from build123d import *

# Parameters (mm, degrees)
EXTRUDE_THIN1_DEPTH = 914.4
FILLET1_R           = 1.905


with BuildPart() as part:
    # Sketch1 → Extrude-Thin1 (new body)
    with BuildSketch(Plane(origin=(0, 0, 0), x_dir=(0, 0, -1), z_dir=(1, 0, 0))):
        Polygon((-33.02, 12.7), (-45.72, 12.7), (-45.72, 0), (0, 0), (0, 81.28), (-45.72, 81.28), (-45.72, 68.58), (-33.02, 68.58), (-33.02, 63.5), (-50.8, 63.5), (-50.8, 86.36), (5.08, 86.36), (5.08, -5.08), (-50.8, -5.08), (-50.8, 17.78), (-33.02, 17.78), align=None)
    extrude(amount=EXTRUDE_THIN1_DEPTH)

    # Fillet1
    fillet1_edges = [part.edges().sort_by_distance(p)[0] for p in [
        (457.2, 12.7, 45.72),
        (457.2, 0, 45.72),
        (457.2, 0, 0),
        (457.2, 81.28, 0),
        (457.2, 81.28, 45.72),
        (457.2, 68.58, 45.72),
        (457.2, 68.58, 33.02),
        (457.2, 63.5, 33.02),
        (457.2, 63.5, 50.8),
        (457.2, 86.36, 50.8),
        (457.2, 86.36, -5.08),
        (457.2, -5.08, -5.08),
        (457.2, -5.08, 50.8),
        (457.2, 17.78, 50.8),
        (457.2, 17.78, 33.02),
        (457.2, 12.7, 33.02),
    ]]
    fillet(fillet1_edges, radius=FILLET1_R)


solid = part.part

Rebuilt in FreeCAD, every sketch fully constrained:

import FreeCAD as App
import Part
import Sketcher
from FreeCAD import Vector
Q = App.Units.Quantity


def edges_at(feature, points):
    """Names of the edges that pass closest to the given points."""
    edges = feature.Shape.Edges
    near = lambda p: min(range(len(edges)), key=lambda i: edges[i].distToShape(Part.Vertex(*p))[0])
    return sorted({f"Edge{near(p) + 1}" for p in points})


def add_polygon(sketch, points):
    """Adds a closed chain of lines whose ends are joined by coincident constraints."""
    first, n = sketch.GeometryCount, len(points)
    for a, b in zip(points, points[1:] + points[:1]):
        sketch.addGeometry(Part.LineSegment(App.Vector(*a, 0), App.Vector(*b, 0)), False)
    for i in range(n):
        sketch.addConstraint(Sketcher.Constraint("Coincident", first + i, 2, first + (i + 1) % n, 1))

doc = App.newDocument("Part")
body = doc.addObject("PartDesign::Body", "Body")

# Sketch on YZ plane
sketch1 = body.newObject("Sketcher::SketchObject", "Sketch")
sketch1.AttachmentSupport = (doc.getObject("YZ_Plane"), [""])
sketch1.MapMode = "FlatFace"
add_polygon(sketch1, [(12.7, 45.72), (12.7, 33.02), (17.78, 33.02), (17.78, 50.8), (-5.08, 50.8), (-5.08, -5.08), (86.36, -5.08), (86.36, 50.8), (63.5, 50.8), (63.5, 33.02), (68.58, 33.02), (68.58, 45.72), (81.28, 45.72), (81.28, 0), (0, 0), (0, 45.72)])  # lines 0-15
sketch1.addConstraint([
    Sketcher.Constraint("Vertical", 0),
    Sketcher.Constraint("Horizontal", 1),
    Sketcher.Constraint("Vertical", 2),
    Sketcher.Constraint("Horizontal", 3),
    Sketcher.Constraint("Vertical", 4),
    Sketcher.Constraint("Horizontal", 5),
    Sketcher.Constraint("Vertical", 6),
    Sketcher.Constraint("Horizontal", 7),
    Sketcher.Constraint("Vertical", 8),
    Sketcher.Constraint("Horizontal", 9),
    Sketcher.Constraint("Vertical", 10),
    Sketcher.Constraint("Horizontal", 11),
    Sketcher.Constraint("Vertical", 12),
    Sketcher.Constraint("Horizontal", 13),
    Sketcher.Constraint("Vertical", 14),
    Sketcher.Constraint("Horizontal", 15),
    Sketcher.Constraint("Coincident", 13, 2, -1, 1),
    Sketcher.Constraint("Horizontal", 3, 2, 6, 2),
    Sketcher.Constraint("Horizontal", 1, 2, 8, 2),
    Sketcher.Constraint("Horizontal", 11, 2, 14, 2),
    Sketcher.Constraint("Equal", 3, 7),
    Sketcher.Constraint("Equal", 1, 9),
    Sketcher.Constraint("Equal", 11, 15),
    Sketcher.Constraint("Equal", 15, 0),
    Sketcher.Constraint("DistanceX", 1, 1, 1, 2, Q("0.2 in")),
    Sketcher.Constraint("DistanceX", 3, 2, 3, 1, Q("0.9 in")),
    Sketcher.Constraint("DistanceX", 5, 1, 5, 2, Q("3.6 in")),
    Sketcher.Constraint("DistanceX", 11, 1, 11, 2, Q("0.5 in")),
    Sketcher.Constraint("DistanceY", 2, 1, 2, 2, Q("0.7 in")),
    Sketcher.Constraint("DistanceY", 4, 2, 4, 1, Q("2.2 in")),
    Sketcher.Constraint("DistanceY", 12, 2, 12, 1, Q("1.8 in")),
])
pad1 = body.newObject("PartDesign::Pad", "Pad")
pad1.Profile = sketch1
pad1.Length = Q("36 in")
doc.recompute()

fillet = body.newObject("PartDesign::Fillet", "Fillet")
fillet.Base = (pad1, edges_at(pad1, [
    (457.2, 12.7, 45.72),
    (457.2, 0, 45.72),
    (457.2, 0, 0),
    (457.2, 81.28, 0),
    (457.2, 81.28, 45.72),
    (457.2, 68.58, 45.72),
    (457.2, 68.58, 33.02),
    (457.2, 63.5, 33.02),
    (457.2, 63.5, 50.8),
    (457.2, 86.36, 50.8),
    (457.2, 86.36, -5.08),
    (457.2, -5.08, -5.08),
    (457.2, -5.08, 50.8),
    (457.2, 17.78, 50.8),
    (457.2, 17.78, 33.02),
    (457.2, 12.7, 33.02),
]))
fillet.Radius = Q("0.075 in")

doc.recompute()
